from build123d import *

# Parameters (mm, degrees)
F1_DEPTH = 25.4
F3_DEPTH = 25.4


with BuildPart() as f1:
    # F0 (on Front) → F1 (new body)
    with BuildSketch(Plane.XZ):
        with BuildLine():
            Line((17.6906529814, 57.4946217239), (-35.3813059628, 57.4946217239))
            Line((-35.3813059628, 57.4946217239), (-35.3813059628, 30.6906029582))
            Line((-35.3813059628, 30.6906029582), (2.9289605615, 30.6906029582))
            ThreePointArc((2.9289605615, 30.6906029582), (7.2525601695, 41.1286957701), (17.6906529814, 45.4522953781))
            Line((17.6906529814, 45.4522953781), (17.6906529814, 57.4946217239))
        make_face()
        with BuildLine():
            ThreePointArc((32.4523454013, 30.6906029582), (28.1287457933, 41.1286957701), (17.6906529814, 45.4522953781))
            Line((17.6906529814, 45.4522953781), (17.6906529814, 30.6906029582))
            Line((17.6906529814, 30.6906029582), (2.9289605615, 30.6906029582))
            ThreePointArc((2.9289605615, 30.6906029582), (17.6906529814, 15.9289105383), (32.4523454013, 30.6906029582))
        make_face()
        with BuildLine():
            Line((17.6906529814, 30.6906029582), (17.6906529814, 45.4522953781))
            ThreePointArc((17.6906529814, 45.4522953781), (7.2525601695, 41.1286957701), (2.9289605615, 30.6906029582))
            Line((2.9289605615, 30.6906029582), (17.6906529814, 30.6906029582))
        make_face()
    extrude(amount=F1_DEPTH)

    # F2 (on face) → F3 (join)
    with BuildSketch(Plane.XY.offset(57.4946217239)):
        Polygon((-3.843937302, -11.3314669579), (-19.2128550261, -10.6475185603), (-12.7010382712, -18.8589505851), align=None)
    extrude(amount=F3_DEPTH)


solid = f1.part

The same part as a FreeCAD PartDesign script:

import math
import FreeCAD as App
import Part
import Sketcher
Q = App.Units.Quantity

doc = App.newDocument("Part")
body = doc.addObject("PartDesign::Body", "Body")

# Sketch on XZ plane
sketch1 = doc.addObject("Sketcher::SketchObject", "Sketch")
body.addObject(sketch1)
sketch1.AttachmentSupport = (doc.XZ_Plane, [""])
sketch1.MapMode = "FlatFace"
sketch1.addGeometry(Part.LineSegment(App.Vector(18, 57, 0), App.Vector(-35, 57, 0)), False)
sketch1.addGeometry(Part.LineSegment(App.Vector(-35, 57, 0), App.Vector(-35, 31, 0)), False)
sketch1.addGeometry(Part.LineSegment(App.Vector(-35, 31, 0), App.Vector(3, 31, 0)), False)
sketch1.addGeometry(Part.ArcOfCircle(Part.Circle(App.Vector(18, 31, 0), App.Vector(0, 0, 1), 15), math.radians(180), math.radians(450)), False)
sketch1.addGeometry(Part.LineSegment(App.Vector(18, 45, 0), App.Vector(18, 57, 0)), False)
sketch1.addConstraint(Sketcher.Constraint("Coincident", 0, 2, 1, 1))
sketch1.addConstraint(Sketcher.Constraint("Coincident", 1, 2, 2, 1))
sketch1.addConstraint(Sketcher.Constraint("Coincident", 2, 2, 3, 1))
sketch1.addConstraint(Sketcher.Constraint("Coincident", 3, 2, 4, 1))
sketch1.addConstraint(Sketcher.Constraint("Coincident", 4, 2, 0, 1))
sketch1.addConstraint(Sketcher.Constraint("Horizontal", 0))
sketch1.addConstraint(Sketcher.Constraint("Vertical", 1))
sketch1.addConstraint(Sketcher.Constraint("Horizontal", 2))
sketch1.addConstraint(Sketcher.Constraint("Vertical", 4))
sketch1.addConstraint(Sketcher.Constraint("Horizontal", 3, 3, 1, 2))
sketch1.addConstraint(Sketcher.Constraint("Radius", 3, Q("14.761692 mm")))
sketch1.addConstraint(Sketcher.Constraint("DistanceX", 0, 2, 0, 1, Q("53.071959 mm")))
sketch1.addConstraint(Sketcher.Constraint("DistanceY", 1, 2, 1, 1, Q("26.804019 mm")))
sketch1.addConstraint(Sketcher.Constraint("DistanceX", 2, 1, 2, 2, Q("38.310267 mm")))
sketch1.addConstraint(Sketcher.Constraint("DistanceY", -1, 1, 0, 2, Q("57.494622 mm")))
sketch1.addConstraint(Sketcher.Constraint("DistanceX", -1, 1, 2, 2, Q("2.928961 mm")))
pad1 = doc.addObject("PartDesign::Pad", "Pad")
body.addObject(pad1)
pad1.Profile = sketch1
pad1.Length = Q("1 in")

# Sketch on XY plane
sketch2 = doc.addObject("Sketcher::SketchObject", "Sketch001")
body.addObject(sketch2)
sketch2.AttachmentSupport = (doc.XY_Plane, [""])
sketch2.MapMode = "FlatFace"
sketch2.AttachmentOffset = App.Placement(App.Vector(0, 0, 57.494622), App.Rotation())
sketch2.addGeometry(Part.LineSegment(App.Vector(-4, -11, 0), App.Vector(-19, -11, 0)), False)
sketch2.addGeometry(Part.LineSegment(App.Vector(-19, -11, 0), App.Vector(-13, -19, 0)), False)
sketch2.addGeometry(Part.LineSegment(App.Vector(-13, -19, 0), App.Vector(-4, -11, 0)), False)
sketch2.addConstraint(Sketcher.Constraint("Coincident", 0, 2, 1, 1))
sketch2.addConstraint(Sketcher.Constraint("Coincident", 1, 2, 2, 1))
sketch2.addConstraint(Sketcher.Constraint("Coincident", 2, 2, 0, 1))
sketch2.addConstraint(Sketcher.Constraint("DistanceX", 1, 2, 2, 2, Q("8.857101 mm")))
sketch2.addConstraint(Sketcher.Constraint("Distance", 0, Q("15.384129 mm")))
sketch2.addConstraint(Sketcher.Constraint("DistanceY", 0, 2, -1, 1, Q("10.647519 mm")))
sketch2.addConstraint(Sketcher.Constraint("DistanceX", 1, 2, -1, 1, Q("12.701038 mm")))
sketch2.addConstraint(Sketcher.Constraint("DistanceY", 1, 2, -1, 1, Q("18.858951 mm")))
sketch2.addConstraint(Sketcher.Constraint("DistanceY", 2, 2, 0, 2, Q("0.683948 mm")))
pad2 = doc.addObject("PartDesign::Pad", "Pad001")
body.addObject(pad2)
pad2.Profile = sketch2
pad2.Length = Q("1 in")

doc.recompute()
